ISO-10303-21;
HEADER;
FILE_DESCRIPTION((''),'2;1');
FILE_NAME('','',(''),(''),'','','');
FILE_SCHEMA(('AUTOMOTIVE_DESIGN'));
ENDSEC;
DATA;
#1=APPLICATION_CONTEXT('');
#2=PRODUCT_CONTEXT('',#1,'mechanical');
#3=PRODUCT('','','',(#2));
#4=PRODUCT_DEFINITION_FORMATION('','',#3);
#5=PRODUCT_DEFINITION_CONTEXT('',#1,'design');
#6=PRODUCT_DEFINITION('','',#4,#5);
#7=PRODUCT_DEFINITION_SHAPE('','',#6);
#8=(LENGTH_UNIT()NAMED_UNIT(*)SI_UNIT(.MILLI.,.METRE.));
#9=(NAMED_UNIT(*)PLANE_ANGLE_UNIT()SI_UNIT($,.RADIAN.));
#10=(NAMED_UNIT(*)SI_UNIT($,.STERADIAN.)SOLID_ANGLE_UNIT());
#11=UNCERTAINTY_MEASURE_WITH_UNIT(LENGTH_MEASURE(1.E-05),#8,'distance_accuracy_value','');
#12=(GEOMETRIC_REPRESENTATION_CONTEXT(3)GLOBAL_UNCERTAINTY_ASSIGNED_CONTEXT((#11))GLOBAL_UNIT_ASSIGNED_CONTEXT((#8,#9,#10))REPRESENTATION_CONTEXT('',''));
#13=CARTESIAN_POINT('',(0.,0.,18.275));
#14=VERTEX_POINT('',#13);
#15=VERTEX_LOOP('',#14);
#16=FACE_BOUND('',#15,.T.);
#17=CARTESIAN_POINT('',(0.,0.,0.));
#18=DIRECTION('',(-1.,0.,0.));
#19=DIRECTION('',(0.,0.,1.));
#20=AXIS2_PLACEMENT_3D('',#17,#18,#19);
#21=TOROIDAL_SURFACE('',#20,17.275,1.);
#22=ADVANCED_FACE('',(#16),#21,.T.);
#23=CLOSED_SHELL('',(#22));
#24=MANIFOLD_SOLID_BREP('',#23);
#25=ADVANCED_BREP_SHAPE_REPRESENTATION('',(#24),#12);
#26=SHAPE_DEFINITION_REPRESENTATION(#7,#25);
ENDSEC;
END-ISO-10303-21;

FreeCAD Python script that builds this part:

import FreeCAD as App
import Part
import Sketcher
from FreeCAD import Vector

doc = App.newDocument("Part")
body = doc.addObject("PartDesign::Body", "Body")

# Sketch on XY plane
sketch1 = body.newObject("Sketcher::SketchObject", "Sketch")
sketch1.AttachmentSupport = (doc.getObject("XY_Plane"), [""])
sketch1.MapMode = "FlatFace"
sketch1.addGeometry(Part.Circle(Vector(0, 17.275, 0), Vector(0, 0, 1), 1), False)
sketch1.addConstraint([
    Sketcher.Constraint("PointOnObject", 0, 3, -2),
    Sketcher.Constraint("Diameter", 0, 2.0),
    Sketcher.Constraint("DistanceY", -1, 1, 0, 3, 17.275),
])
revolution = body.newObject("PartDesign::Revolution", "Revolution")
revolution.Profile = sketch1
revolution.ReferenceAxis = (sketch1, ["H_Axis"])
revolution.Angle = 360

doc.recompute()
